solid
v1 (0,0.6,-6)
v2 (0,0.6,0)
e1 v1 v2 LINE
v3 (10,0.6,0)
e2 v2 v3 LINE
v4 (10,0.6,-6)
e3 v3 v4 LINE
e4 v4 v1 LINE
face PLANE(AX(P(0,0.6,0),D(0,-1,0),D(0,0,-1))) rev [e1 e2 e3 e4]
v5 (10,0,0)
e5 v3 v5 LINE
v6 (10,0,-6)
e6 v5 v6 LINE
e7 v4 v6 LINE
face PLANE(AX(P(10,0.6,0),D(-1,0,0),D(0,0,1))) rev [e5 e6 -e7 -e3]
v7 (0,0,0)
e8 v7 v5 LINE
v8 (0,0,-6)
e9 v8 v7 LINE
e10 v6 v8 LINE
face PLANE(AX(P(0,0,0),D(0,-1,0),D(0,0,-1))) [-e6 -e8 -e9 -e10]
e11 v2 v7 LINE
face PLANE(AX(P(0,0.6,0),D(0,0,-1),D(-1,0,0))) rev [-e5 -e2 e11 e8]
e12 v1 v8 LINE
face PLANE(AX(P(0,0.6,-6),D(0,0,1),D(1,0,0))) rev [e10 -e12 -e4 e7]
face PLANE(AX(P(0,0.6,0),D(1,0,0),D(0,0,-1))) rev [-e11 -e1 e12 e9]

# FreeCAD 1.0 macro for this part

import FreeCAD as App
import Part
import Sketcher
from FreeCAD import Vector


def add_polygon(sketch, points):
    """Adds a closed chain of lines whose ends are joined by coincident constraints."""
    first, n = sketch.GeometryCount, len(points)
    for a, b in zip(points, points[1:] + points[:1]):
        sketch.addGeometry(Part.LineSegment(App.Vector(*a, 0), App.Vector(*b, 0)), False)
    for i in range(n):
        sketch.addConstraint(Sketcher.Constraint("Coincident", first + i, 2, first + (i + 1) % n, 1))

doc = App.newDocument("Part")
body = doc.addObject("PartDesign::Body", "Body")

# Sketch on XZ plane
sketch1 = body.newObject("Sketcher::SketchObject", "Sketch")
sketch1.AttachmentSupport = (doc.getObject("XZ_Plane"), [""])
sketch1.MapMode = "FlatFace"
add_polygon(sketch1, [(0, -6), (0, 0), (10, 0), (10, -6)])  # lines 0-3
sketch1.addConstraint([
    Sketcher.Constraint("Vertical", 0),
    Sketcher.Constraint("Horizontal", 1),
    Sketcher.Constraint("Vertical", 2),
    Sketcher.Constraint("Horizontal", 3),
    Sketcher.Constraint("Coincident", 0, 2, -1, 1),
    Sketcher.Constraint("DistanceX", 1, 1, 1, 2, 10.0),
    Sketcher.Constraint("DistanceY", 0, 1, 0, 2, 6.0),
])
pad1 = body.newObject("PartDesign::Pad", "Pad")
pad1.Profile = sketch1
pad1.Length = 0.6
pad1.Reversed = True

doc.recompute()
